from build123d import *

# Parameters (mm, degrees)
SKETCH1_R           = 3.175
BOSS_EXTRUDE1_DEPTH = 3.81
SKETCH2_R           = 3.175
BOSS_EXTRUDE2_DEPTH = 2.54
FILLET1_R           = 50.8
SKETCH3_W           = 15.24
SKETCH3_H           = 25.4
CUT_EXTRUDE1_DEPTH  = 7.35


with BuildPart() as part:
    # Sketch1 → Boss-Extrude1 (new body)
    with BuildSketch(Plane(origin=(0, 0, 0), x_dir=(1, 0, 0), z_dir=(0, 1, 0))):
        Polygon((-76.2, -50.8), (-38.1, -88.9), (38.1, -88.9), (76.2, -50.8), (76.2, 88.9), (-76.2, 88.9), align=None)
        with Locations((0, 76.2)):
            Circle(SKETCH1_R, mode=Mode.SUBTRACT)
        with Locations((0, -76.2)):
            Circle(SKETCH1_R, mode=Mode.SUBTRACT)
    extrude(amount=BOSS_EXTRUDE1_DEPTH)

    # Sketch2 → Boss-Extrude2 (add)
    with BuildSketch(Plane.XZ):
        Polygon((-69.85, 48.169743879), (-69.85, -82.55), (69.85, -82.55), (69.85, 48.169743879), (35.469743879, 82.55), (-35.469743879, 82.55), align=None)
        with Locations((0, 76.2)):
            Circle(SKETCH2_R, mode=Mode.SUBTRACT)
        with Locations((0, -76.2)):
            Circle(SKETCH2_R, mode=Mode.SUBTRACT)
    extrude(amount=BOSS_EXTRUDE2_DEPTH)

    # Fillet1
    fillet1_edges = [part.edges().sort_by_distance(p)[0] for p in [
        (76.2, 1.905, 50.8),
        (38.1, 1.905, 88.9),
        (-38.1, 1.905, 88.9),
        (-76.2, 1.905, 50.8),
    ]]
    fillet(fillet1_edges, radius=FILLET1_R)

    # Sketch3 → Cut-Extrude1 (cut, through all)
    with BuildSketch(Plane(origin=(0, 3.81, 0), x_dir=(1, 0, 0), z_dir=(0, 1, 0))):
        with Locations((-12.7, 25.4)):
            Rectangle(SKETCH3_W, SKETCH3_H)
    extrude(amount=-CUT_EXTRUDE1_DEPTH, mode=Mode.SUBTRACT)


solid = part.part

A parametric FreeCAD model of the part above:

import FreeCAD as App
import Part
import Sketcher
from FreeCAD import Vector
Q = App.Units.Quantity


def edges_at(feature, points):
    """Names of the edges that pass closest to the given points."""
    edges = feature.Shape.Edges
    near = lambda p: min(range(len(edges)), key=lambda i: edges[i].distToShape(Part.Vertex(*p))[0])
    return sorted({f"Edge{near(p) + 1}" for p in points})

doc = App.newDocument("Part")
body = doc.addObject("PartDesign::Body", "Body")

# Sketch on XZ plane
sketch1 = doc.addObject("Sketcher::SketchObject", "Sketch")
body.addObject(sketch1)
sketch1.AttachmentSupport = (doc.XZ_Plane, [""])
sketch1.MapMode = "FlatFace"
sketch1.addGeometry([
    Part.LineSegment(Vector(-76.2, 50.8, 0), Vector(-38.1, 88.9, 0)),  # 0
    Part.LineSegment(Vector(-38.1, 88.9, 0), Vector(38.1, 88.9, 0)),  # 1
    Part.LineSegment(Vector(38.1, 88.9, 0), Vector(76.2, 50.8, 0)),  # 2
    Part.LineSegment(Vector(76.2, 50.8, 0), Vector(76.2, -88.9, 0)),  # 3
    Part.LineSegment(Vector(76.2, -88.9, 0), Vector(-76.2, -88.9, 0)),  # 4
    Part.LineSegment(Vector(-76.2, -88.9, 0), Vector(-76.2, 50.8, 0)),  # 5
    Part.Circle(Vector(0, 76.2, 0), Vector(0, 0, 1), 3.2),  # 6
    Part.Circle(Vector(0, -76.2, 0), Vector(0, 0, 1), 3.2),  # 7
], False)
sketch1.addConstraint([
    Sketcher.Constraint("Coincident", 0, 2, 1, 1),
    Sketcher.Constraint("Coincident", 1, 2, 2, 1),
    Sketcher.Constraint("Coincident", 2, 2, 3, 1),
    Sketcher.Constraint("Coincident", 3, 2, 4, 1),
    Sketcher.Constraint("Coincident", 4, 2, 5, 1),
    Sketcher.Constraint("Coincident", 5, 2, 0, 1),
    Sketcher.Constraint("Horizontal", 1),
    Sketcher.Constraint("Vertical", 3),
    Sketcher.Constraint("Horizontal", 4),
    Sketcher.Constraint("Vertical", 5),
    Sketcher.Constraint("Equal", 6, 7),
    Sketcher.Constraint("Symmetric", 6, 3, 7, 3, -1, 1),
    Sketcher.Constraint("Symmetric", 2, 2, 5, 2, -2),
    Sketcher.Constraint("PointOnObject", 6, 3, -2),
    Sketcher.Constraint("Perpendicular", 0, 2),
    Sketcher.Constraint("Equal", 0, 2),
    Sketcher.Constraint("Diameter", 6, Q("0.25 in")),
    Sketcher.Constraint("DistanceX", 1, 1, 1, 2, Q("3 in")),
    Sketcher.Constraint("DistanceX", 4, 2, 4, 1, Q("6 in")),
    Sketcher.Constraint("DistanceY", 3, 2, 3, 1, Q("5.5 in")),
    Sketcher.Constraint("DistanceY", -1, 1, 6, 3, Q("3 in")),
    Sketcher.Constraint("DistanceY", -1, 1, 2, 2, Q("2 in")),
])
pad1 = doc.addObject("PartDesign::Pad", "Pad")
body.addObject(pad1)
pad1.Profile = sketch1
pad1.Length = Q("0.15 in")
pad1.Reversed = True

# Sketch on XZ plane
sketch2 = doc.addObject("Sketcher::SketchObject", "Sketch001")
body.addObject(sketch2)
sketch2.AttachmentSupport = (doc.XZ_Plane, [""])
sketch2.MapMode = "FlatFace"
sketch2.addGeometry([
    Part.LineSegment(Vector(-69.8, 48.2, 0), Vector(-69.8, -82.5, 0)),  # 0
    Part.LineSegment(Vector(-69.8, -82.5, 0), Vector(69.8, -82.5, 0)),  # 1
    Part.LineSegment(Vector(69.8, -82.5, 0), Vector(69.8, 48.2, 0)),  # 2
    Part.LineSegment(Vector(69.8, 48.2, 0), Vector(35.5, 82.5, 0)),  # 3
    Part.LineSegment(Vector(35.5, 82.5, 0), Vector(-35.5, 82.5, 0)),  # 4
    Part.LineSegment(Vector(-35.5, 82.5, 0), Vector(-69.8, 48.2, 0)),  # 5
    Part.Circle(Vector(0, -76.2, 0), Vector(0, 0, 1), 3.2),  # 6
    Part.Circle(Vector(0, 76.2, 0), Vector(0, 0, 1), 3.2),  # 7
], False)
sketch2.addConstraint([
    Sketcher.Constraint("Coincident", 0, 2, 1, 1),
    Sketcher.Constraint("Coincident", 1, 2, 2, 1),
    Sketcher.Constraint("Coincident", 2, 2, 3, 1),
    Sketcher.Constraint("Coincident", 3, 2, 4, 1),
    Sketcher.Constraint("Coincident", 4, 2, 5, 1),
    Sketcher.Constraint("Coincident", 5, 2, 0, 1),
    Sketcher.Constraint("Vertical", 0),
    Sketcher.Constraint("Horizontal", 1),
    Sketcher.Constraint("Vertical", 2),
    Sketcher.Constraint("Horizontal", 4),
    Sketcher.Constraint("Equal", 6, 7),
    Sketcher.Constraint("Symmetric", 6, 3, 7, 3, -1, 1),
    Sketcher.Constraint("Symmetric", 2, 2, 5, 2, -2),
    Sketcher.Constraint("PointOnObject", 6, 3, -2),
    Sketcher.Constraint("Perpendicular", 3, 5),
    Sketcher.Constraint("Equal", 3, 5),
    Sketcher.Constraint("Diameter", 6, Q("0.25 in")),
    Sketcher.Constraint("DistanceX", 1, 1, 1, 2, Q("5.5 in")),
    Sketcher.Constraint("DistanceY", 6, 3, -1, 1, Q("3 in")),
    Sketcher.Constraint("DistanceY", 1, 2, 3, 2, Q("6.5 in")),
    Sketcher.Constraint("DistanceY", 0, 2, -1, 1, Q("3.25 in")),
    Sketcher.Constraint("DistanceX", 4, 2, 4, 1, Q("70.939488 mm")),
])
pad2 = doc.addObject("PartDesign::Pad", "Pad001")
body.addObject(pad2)
pad2.Profile = sketch2
pad2.Length = Q("0.1 in")
doc.recompute()

fillet = doc.addObject("PartDesign::Fillet", "Fillet")
body.addObject(fillet)
fillet.Base = (pad2, edges_at(pad2, [
    (76.2, 1.905, 50.8),
    (38.1, 1.905, 88.9),
    (-38.1, 1.905, 88.9),
    (-76.2, 1.905, 50.8),
]))
fillet.Radius = Q("2 in")

# Sketch on XZ plane
sketch3 = doc.addObject("Sketcher::SketchObject", "Sketch002")
body.addObject(sketch3)
sketch3.AttachmentSupport = (doc.XZ_Plane, [""])
sketch3.MapMode = "FlatFace"
sketch3.AttachmentOffset = App.Placement(Vector(0, 0, -0.15 * 25.4), App.Rotation())
sketch3.addGeometry([
    Part.LineSegment(Vector(-20, -38, 0), Vector(-20, -13, 0)),
    Part.LineSegment(Vector(-20, -13, 0), Vector(-5, -13, 0)),
    Part.LineSegment(Vector(-5, -13, 0), Vector(-5, -38, 0)),
    Part.LineSegment(Vector(-5, -38, 0), Vector(-20, -38, 0)),
], False)
sketch3.addConstraint([
    Sketcher.Constraint("Coincident", 0, 2, 1, 1),
    Sketcher.Constraint("Coincident", 1, 2, 2, 1),
    Sketcher.Constraint("Coincident", 2, 2, 3, 1),
    Sketcher.Constraint("Coincident", 3, 2, 0, 1),
    Sketcher.Constraint("Vertical", 0),
    Sketcher.Constraint("Horizontal", 1),
    Sketcher.Constraint("Vertical", 2),
    Sketcher.Constraint("Horizontal", 3),
    Sketcher.Constraint("DistanceY", 0, 1, 0, 2, Q("1 in")),
    Sketcher.Constraint("DistanceX", 1, 1, 1, 2, Q("0.6 in")),
    Sketcher.Constraint("DistanceX", 0, 2, -1, 1, Q("0.8 in")),
    Sketcher.Constraint("DistanceY", 0, 2, -1, 1, Q("0.5 in")),
])
pocket1 = doc.addObject("PartDesign::Pocket", "Pocket")
body.addObject(pocket1)
pocket1.Profile = sketch3
pocket1.Type = "ThroughAll"
pocket1.Reversed = True

doc.recompute()
